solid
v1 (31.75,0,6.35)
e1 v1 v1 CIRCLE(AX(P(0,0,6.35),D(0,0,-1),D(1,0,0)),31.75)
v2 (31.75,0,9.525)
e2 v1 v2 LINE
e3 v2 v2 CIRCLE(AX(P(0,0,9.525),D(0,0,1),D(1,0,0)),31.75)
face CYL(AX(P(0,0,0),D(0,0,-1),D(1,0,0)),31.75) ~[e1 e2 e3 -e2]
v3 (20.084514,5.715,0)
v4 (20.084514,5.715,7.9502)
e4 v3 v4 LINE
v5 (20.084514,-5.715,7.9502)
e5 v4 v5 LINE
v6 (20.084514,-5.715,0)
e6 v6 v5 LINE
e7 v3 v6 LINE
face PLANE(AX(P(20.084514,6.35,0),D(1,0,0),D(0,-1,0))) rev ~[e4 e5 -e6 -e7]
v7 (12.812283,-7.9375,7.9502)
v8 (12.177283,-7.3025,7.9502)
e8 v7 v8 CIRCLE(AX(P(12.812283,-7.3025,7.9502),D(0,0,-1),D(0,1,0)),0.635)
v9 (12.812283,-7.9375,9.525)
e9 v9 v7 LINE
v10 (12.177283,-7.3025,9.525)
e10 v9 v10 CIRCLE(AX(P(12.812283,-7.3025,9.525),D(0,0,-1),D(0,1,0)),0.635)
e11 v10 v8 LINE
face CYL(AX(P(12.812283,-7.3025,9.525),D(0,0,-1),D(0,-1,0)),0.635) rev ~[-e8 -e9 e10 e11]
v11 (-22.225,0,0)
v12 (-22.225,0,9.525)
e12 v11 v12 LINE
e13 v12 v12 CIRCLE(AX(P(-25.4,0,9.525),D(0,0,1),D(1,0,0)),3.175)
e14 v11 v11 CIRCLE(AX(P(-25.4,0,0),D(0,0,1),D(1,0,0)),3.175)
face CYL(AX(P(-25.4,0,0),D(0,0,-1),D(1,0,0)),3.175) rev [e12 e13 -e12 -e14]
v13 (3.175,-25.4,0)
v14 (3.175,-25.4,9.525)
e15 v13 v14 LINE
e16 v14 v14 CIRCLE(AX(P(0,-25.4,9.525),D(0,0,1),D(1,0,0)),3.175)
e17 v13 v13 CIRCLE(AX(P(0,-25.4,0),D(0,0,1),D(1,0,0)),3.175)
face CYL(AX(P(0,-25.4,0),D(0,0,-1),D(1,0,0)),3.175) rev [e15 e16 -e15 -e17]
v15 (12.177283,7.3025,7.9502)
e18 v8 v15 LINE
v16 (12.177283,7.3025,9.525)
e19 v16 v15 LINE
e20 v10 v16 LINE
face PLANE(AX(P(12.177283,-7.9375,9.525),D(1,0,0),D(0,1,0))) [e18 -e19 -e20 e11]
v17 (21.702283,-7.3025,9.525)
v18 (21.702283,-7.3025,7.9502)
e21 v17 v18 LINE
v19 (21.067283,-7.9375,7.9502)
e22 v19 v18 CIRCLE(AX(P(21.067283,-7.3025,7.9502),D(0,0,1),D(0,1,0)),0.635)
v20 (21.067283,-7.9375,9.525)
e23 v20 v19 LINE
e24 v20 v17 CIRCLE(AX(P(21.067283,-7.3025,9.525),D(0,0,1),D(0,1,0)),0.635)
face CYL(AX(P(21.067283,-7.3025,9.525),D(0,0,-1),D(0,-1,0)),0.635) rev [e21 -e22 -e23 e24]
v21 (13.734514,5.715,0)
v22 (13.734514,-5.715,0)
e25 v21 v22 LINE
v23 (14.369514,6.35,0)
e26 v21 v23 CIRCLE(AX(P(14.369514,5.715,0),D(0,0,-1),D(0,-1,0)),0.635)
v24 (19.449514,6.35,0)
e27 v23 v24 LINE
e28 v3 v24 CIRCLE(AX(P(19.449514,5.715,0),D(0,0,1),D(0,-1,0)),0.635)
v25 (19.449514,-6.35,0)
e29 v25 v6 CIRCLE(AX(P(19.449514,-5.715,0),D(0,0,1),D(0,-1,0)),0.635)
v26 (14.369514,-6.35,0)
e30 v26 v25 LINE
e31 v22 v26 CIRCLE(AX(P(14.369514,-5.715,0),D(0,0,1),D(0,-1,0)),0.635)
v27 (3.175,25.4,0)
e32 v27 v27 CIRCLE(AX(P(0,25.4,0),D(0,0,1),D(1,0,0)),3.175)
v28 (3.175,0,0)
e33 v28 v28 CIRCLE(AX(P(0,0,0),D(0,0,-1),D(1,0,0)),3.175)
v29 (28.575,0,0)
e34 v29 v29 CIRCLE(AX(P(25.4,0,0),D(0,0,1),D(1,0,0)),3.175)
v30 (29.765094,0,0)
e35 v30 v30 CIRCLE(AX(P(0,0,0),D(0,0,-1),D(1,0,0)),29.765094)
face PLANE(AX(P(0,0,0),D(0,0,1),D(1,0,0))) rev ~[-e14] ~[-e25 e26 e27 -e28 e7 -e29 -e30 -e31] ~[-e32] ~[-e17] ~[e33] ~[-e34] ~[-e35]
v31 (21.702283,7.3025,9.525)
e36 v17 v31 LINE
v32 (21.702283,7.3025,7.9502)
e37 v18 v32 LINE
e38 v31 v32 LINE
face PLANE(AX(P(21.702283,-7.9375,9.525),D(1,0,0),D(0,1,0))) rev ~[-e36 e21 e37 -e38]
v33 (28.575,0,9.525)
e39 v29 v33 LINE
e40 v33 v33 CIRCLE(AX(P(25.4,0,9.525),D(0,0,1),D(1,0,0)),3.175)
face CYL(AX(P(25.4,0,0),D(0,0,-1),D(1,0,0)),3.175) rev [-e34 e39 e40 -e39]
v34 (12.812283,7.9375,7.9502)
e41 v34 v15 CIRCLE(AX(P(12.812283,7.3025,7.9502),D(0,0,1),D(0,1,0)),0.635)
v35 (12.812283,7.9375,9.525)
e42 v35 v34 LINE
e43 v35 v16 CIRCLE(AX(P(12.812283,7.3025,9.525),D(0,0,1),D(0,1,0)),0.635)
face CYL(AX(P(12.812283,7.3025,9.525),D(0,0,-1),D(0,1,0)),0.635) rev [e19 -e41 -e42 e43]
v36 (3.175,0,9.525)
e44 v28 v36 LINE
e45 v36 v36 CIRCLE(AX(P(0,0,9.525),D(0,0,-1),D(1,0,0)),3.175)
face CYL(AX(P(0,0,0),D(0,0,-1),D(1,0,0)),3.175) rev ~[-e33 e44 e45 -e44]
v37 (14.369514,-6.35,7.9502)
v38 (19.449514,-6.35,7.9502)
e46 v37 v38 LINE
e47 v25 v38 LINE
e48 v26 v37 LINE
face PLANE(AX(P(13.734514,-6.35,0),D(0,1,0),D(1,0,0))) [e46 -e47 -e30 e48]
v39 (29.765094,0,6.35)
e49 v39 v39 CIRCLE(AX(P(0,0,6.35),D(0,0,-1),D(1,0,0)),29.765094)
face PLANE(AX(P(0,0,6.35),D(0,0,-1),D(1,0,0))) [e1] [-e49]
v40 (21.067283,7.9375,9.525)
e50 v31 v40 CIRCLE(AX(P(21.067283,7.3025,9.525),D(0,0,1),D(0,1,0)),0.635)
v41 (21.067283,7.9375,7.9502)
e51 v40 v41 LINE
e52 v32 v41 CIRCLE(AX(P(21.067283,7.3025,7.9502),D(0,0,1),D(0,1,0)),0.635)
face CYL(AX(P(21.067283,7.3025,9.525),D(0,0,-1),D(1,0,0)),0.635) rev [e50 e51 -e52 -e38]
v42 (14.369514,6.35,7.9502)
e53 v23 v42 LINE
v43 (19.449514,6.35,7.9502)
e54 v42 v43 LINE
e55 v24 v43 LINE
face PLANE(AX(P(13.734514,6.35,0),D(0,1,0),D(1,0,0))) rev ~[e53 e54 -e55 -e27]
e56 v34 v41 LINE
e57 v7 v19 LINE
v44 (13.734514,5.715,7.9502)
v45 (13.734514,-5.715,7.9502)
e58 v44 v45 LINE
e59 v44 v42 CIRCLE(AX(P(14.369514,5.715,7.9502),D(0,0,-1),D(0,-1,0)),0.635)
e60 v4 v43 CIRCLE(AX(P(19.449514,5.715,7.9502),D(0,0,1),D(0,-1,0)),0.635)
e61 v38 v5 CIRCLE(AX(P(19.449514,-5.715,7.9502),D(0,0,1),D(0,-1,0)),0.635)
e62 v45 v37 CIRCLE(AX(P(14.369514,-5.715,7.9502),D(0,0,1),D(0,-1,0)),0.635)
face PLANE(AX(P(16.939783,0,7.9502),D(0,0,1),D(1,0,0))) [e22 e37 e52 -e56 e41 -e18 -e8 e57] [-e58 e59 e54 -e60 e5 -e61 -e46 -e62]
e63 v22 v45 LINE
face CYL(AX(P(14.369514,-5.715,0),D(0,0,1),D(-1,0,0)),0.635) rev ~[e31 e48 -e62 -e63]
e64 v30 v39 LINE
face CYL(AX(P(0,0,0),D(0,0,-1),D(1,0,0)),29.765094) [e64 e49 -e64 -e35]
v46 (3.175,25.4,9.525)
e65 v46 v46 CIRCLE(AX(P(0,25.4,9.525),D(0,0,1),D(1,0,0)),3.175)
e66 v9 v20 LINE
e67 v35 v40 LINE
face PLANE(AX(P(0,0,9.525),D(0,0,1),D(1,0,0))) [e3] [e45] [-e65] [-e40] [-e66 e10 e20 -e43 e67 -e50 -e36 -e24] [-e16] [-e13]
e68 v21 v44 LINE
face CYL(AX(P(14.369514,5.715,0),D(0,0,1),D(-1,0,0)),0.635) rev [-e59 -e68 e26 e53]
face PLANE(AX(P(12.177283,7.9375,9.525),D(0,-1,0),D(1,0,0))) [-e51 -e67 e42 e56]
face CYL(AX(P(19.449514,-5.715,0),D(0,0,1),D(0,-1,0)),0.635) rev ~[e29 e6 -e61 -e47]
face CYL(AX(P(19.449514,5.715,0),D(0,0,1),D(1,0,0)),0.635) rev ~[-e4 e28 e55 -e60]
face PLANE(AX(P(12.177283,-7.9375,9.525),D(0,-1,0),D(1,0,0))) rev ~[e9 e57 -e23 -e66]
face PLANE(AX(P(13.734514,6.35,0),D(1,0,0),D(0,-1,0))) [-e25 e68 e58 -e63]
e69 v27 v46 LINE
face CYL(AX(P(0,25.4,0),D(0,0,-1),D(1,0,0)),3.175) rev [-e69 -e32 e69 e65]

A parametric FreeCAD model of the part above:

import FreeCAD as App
import Part
import Sketcher
Q = App.Units.Quantity


def edges_at(feature, points):
    """Names of the edges that pass closest to the given points."""
    edges = feature.Shape.Edges
    near = lambda p: min(range(len(edges)), key=lambda i: edges[i].distToShape(Part.Vertex(*p))[0])
    return sorted({f"Edge{near(p) + 1}" for p in points})

doc = App.newDocument("Part")
body = doc.addObject("PartDesign::Body", "Body")

# Sketch on XY plane
sketch1 = doc.addObject("Sketcher::SketchObject", "Sketch")
body.addObject(sketch1)
sketch1.AttachmentSupport = (doc.XY_Plane, [""])
sketch1.MapMode = "FlatFace"
sketch1.addGeometry([
    Part.Circle(App.Vector(0, 0, 0), App.Vector(0, 0, 1), 31.8),  # 0
    Part.Circle(App.Vector(0, -25.4, 0), App.Vector(0, 0, 1), 3.2),  # 1
    Part.Circle(App.Vector(-25.4, 0, 0), App.Vector(0, 0, 1), 3.2),  # 2
    Part.Circle(App.Vector(25.4, 0, 0), App.Vector(0, 0, 1), 3.2),  # 3
    Part.Circle(App.Vector(0, 25.4, 0), App.Vector(0, 0, 1), 3.2),  # 4
], False)
sketch1.addConstraint([
    Sketcher.Constraint("Coincident", 0, 3, -1, 1),
    Sketcher.Constraint("Equal", 1, 2),
    Sketcher.Constraint("Equal", 2, 3),
    Sketcher.Constraint("Equal", 3, 4),
    Sketcher.Constraint("Symmetric", 2, 3, 3, 3, -1, 1),
    Sketcher.Constraint("Symmetric", 1, 3, 4, 3, -1, 1),
    Sketcher.Constraint("PointOnObject", 1, 3, -2),
    Sketcher.Constraint("PointOnObject", 2, 3, -1),
    Sketcher.Constraint("Diameter", 0, Q("2.5 in")),
    Sketcher.Constraint("Diameter", 1, Q("0.25 in")),
    Sketcher.Constraint("DistanceY", 1, 3, -1, 1, Q("1 in")),
    Sketcher.Constraint("DistanceX", 2, 3, -1, 1, Q("1 in")),
])
pad1 = doc.addObject("PartDesign::Pad", "Pad")
body.addObject(pad1)
pad1.Profile = sketch1
pad1.Length = Q("0.375 in")

# Sketch on XY plane
sketch2 = doc.addObject("Sketcher::SketchObject", "Sketch001")
body.addObject(sketch2)
sketch2.AttachmentSupport = (doc.XY_Plane, [""])
sketch2.MapMode = "FlatFace"
sketch2.addGeometry([
    Part.Circle(App.Vector(0, 0, 0), App.Vector(0, 0, 1), 32),
    Part.Circle(App.Vector(0, 0, 0), App.Vector(0, 0, 1), 30),
], False)
sketch2.addConstraint([
    Sketcher.Constraint("Coincident", 0, 3, -1, 1),
    Sketcher.Constraint("Coincident", 1, 3, -1, 1),
    Sketcher.Constraint("Diameter", 0, Q("2.5 in")),
    Sketcher.Constraint("Diameter", 1, 59.530188),
])
pocket1 = doc.addObject("PartDesign::Pocket", "Pocket")
body.addObject(pocket1)
pocket1.Profile = sketch2
pocket1.Length = Q("0.25 in")
pocket1.Reversed = True

# Sketch on XY plane
sketch3 = doc.addObject("Sketcher::SketchObject", "Sketch002")
body.addObject(sketch3)
sketch3.AttachmentSupport = (doc.XY_Plane, [""])
sketch3.MapMode = "FlatFace"
sketch3.addGeometry(Part.Circle(App.Vector(0, 0, 0), App.Vector(0, 0, 1), 3.2), False)
sketch3.addConstraint([
    Sketcher.Constraint("Coincident", 0, 3, -1, 1),
    Sketcher.Constraint("Diameter", 0, Q("0.25 in")),
])
pocket2 = doc.addObject("PartDesign::Pocket", "Pocket001")
body.addObject(pocket2)
pocket2.Profile = sketch3
pocket2.Type = "ThroughAll"
pocket2.Reversed = True

# Sketch on XY plane
sketch4 = doc.addObject("Sketcher::SketchObject", "Sketch003")
body.addObject(sketch4)
sketch4.AttachmentSupport = (doc.XY_Plane, [""])
sketch4.MapMode = "FlatFace"
sketch4.addGeometry([
    Part.LineSegment(App.Vector(14, -6, 0), App.Vector(14, 6, 0)),
    Part.LineSegment(App.Vector(14, 6, 0), App.Vector(20, 6, 0)),
    Part.LineSegment(App.Vector(20, 6, 0), App.Vector(20, -6, 0)),
    Part.LineSegment(App.Vector(20, -6, 0), App.Vector(14, -6, 0)),
], False)
sketch4.addConstraint([
    Sketcher.Constraint("Coincident", 0, 2, 1, 1),
    Sketcher.Constraint("Coincident", 1, 2, 2, 1),
    Sketcher.Constraint("Coincident", 2, 2, 3, 1),
    Sketcher.Constraint("Coincident", 3, 2, 0, 1),
    Sketcher.Constraint("Vertical", 0),
    Sketcher.Constraint("Horizontal", 1),
    Sketcher.Constraint("Vertical", 2),
    Sketcher.Constraint("Horizontal", 3),
    Sketcher.Constraint("DistanceY", 0, 1, 0, 2, Q("0.5 in")),
    Sketcher.Constraint("DistanceX", 1, 1, 1, 2, Q("0.25 in")),
    Sketcher.Constraint("DistanceY", -1, 1, 0, 2, Q("0.25 in")),
    Sketcher.Constraint("DistanceX", -1, 1, 0, 2, 13.734514),
])
pocket3 = doc.addObject("PartDesign::Pocket", "Pocket002")
body.addObject(pocket3)
pocket3.Profile = sketch4
pocket3.Length = Q("1 in")
pocket3.Reversed = True

# Sketch on XY plane
sketch5 = doc.addObject("Sketcher::SketchObject", "Sketch004")
body.addObject(sketch5)
sketch5.AttachmentSupport = (doc.XY_Plane, [""])
sketch5.MapMode = "FlatFace"
sketch5.AttachmentOffset = App.Placement(App.Vector(0, 0, 0.375 * 25.4), App.Rotation())
sketch5.addGeometry([
    Part.LineSegment(App.Vector(12, 8, 0), App.Vector(12, -8, 0)),
    Part.LineSegment(App.Vector(12, -8, 0), App.Vector(22, -8, 0)),
    Part.LineSegment(App.Vector(22, -8, 0), App.Vector(22, 8, 0)),
    Part.LineSegment(App.Vector(22, 8, 0), App.Vector(12, 8, 0)),
], False)
sketch5.addConstraint([
    Sketcher.Constraint("Coincident", 0, 2, 1, 1),
    Sketcher.Constraint("Coincident", 1, 2, 2, 1),
    Sketcher.Constraint("Coincident", 2, 2, 3, 1),
    Sketcher.Constraint("Coincident", 3, 2, 0, 1),
    Sketcher.Constraint("Vertical", 0),
    Sketcher.Constraint("Horizontal", 1),
    Sketcher.Constraint("Vertical", 2),
    Sketcher.Constraint("Horizontal", 3),
    Sketcher.Constraint("DistanceX", 1, 1, 1, 2, Q("0.375 in")),
    Sketcher.Constraint("DistanceY", 0, 2, 0, 1, Q("0.625 in")),
    Sketcher.Constraint("DistanceY", 0, 2, -1, 1, Q("0.3125 in")),
    Sketcher.Constraint("DistanceX", -1, 1, 0, 2, 12.177283),
])
pocket4 = doc.addObject("PartDesign::Pocket", "Pocket003")
body.addObject(pocket4)
pocket4.Profile = sketch5
pocket4.Length = Q("0.062 in")
doc.recompute()

fillet = doc.addObject("PartDesign::Fillet", "Fillet")
body.addObject(fillet)
fillet.Base = (pocket4, edges_at(pocket4, [
    (13.735, -6.35, 3.975),
    (13.735, 6.35, 3.975),
    (20.085, -6.35, 3.975),
    (20.085, 6.35, 3.975),
    (21.702, 7.938, 8.738),
    (21.702, -7.938, 8.738),
    (12.177, -7.938, 8.738),
    (12.177, 7.938, 8.738),
]))
fillet.Radius = Q("0.025 in")

doc.recompute()
